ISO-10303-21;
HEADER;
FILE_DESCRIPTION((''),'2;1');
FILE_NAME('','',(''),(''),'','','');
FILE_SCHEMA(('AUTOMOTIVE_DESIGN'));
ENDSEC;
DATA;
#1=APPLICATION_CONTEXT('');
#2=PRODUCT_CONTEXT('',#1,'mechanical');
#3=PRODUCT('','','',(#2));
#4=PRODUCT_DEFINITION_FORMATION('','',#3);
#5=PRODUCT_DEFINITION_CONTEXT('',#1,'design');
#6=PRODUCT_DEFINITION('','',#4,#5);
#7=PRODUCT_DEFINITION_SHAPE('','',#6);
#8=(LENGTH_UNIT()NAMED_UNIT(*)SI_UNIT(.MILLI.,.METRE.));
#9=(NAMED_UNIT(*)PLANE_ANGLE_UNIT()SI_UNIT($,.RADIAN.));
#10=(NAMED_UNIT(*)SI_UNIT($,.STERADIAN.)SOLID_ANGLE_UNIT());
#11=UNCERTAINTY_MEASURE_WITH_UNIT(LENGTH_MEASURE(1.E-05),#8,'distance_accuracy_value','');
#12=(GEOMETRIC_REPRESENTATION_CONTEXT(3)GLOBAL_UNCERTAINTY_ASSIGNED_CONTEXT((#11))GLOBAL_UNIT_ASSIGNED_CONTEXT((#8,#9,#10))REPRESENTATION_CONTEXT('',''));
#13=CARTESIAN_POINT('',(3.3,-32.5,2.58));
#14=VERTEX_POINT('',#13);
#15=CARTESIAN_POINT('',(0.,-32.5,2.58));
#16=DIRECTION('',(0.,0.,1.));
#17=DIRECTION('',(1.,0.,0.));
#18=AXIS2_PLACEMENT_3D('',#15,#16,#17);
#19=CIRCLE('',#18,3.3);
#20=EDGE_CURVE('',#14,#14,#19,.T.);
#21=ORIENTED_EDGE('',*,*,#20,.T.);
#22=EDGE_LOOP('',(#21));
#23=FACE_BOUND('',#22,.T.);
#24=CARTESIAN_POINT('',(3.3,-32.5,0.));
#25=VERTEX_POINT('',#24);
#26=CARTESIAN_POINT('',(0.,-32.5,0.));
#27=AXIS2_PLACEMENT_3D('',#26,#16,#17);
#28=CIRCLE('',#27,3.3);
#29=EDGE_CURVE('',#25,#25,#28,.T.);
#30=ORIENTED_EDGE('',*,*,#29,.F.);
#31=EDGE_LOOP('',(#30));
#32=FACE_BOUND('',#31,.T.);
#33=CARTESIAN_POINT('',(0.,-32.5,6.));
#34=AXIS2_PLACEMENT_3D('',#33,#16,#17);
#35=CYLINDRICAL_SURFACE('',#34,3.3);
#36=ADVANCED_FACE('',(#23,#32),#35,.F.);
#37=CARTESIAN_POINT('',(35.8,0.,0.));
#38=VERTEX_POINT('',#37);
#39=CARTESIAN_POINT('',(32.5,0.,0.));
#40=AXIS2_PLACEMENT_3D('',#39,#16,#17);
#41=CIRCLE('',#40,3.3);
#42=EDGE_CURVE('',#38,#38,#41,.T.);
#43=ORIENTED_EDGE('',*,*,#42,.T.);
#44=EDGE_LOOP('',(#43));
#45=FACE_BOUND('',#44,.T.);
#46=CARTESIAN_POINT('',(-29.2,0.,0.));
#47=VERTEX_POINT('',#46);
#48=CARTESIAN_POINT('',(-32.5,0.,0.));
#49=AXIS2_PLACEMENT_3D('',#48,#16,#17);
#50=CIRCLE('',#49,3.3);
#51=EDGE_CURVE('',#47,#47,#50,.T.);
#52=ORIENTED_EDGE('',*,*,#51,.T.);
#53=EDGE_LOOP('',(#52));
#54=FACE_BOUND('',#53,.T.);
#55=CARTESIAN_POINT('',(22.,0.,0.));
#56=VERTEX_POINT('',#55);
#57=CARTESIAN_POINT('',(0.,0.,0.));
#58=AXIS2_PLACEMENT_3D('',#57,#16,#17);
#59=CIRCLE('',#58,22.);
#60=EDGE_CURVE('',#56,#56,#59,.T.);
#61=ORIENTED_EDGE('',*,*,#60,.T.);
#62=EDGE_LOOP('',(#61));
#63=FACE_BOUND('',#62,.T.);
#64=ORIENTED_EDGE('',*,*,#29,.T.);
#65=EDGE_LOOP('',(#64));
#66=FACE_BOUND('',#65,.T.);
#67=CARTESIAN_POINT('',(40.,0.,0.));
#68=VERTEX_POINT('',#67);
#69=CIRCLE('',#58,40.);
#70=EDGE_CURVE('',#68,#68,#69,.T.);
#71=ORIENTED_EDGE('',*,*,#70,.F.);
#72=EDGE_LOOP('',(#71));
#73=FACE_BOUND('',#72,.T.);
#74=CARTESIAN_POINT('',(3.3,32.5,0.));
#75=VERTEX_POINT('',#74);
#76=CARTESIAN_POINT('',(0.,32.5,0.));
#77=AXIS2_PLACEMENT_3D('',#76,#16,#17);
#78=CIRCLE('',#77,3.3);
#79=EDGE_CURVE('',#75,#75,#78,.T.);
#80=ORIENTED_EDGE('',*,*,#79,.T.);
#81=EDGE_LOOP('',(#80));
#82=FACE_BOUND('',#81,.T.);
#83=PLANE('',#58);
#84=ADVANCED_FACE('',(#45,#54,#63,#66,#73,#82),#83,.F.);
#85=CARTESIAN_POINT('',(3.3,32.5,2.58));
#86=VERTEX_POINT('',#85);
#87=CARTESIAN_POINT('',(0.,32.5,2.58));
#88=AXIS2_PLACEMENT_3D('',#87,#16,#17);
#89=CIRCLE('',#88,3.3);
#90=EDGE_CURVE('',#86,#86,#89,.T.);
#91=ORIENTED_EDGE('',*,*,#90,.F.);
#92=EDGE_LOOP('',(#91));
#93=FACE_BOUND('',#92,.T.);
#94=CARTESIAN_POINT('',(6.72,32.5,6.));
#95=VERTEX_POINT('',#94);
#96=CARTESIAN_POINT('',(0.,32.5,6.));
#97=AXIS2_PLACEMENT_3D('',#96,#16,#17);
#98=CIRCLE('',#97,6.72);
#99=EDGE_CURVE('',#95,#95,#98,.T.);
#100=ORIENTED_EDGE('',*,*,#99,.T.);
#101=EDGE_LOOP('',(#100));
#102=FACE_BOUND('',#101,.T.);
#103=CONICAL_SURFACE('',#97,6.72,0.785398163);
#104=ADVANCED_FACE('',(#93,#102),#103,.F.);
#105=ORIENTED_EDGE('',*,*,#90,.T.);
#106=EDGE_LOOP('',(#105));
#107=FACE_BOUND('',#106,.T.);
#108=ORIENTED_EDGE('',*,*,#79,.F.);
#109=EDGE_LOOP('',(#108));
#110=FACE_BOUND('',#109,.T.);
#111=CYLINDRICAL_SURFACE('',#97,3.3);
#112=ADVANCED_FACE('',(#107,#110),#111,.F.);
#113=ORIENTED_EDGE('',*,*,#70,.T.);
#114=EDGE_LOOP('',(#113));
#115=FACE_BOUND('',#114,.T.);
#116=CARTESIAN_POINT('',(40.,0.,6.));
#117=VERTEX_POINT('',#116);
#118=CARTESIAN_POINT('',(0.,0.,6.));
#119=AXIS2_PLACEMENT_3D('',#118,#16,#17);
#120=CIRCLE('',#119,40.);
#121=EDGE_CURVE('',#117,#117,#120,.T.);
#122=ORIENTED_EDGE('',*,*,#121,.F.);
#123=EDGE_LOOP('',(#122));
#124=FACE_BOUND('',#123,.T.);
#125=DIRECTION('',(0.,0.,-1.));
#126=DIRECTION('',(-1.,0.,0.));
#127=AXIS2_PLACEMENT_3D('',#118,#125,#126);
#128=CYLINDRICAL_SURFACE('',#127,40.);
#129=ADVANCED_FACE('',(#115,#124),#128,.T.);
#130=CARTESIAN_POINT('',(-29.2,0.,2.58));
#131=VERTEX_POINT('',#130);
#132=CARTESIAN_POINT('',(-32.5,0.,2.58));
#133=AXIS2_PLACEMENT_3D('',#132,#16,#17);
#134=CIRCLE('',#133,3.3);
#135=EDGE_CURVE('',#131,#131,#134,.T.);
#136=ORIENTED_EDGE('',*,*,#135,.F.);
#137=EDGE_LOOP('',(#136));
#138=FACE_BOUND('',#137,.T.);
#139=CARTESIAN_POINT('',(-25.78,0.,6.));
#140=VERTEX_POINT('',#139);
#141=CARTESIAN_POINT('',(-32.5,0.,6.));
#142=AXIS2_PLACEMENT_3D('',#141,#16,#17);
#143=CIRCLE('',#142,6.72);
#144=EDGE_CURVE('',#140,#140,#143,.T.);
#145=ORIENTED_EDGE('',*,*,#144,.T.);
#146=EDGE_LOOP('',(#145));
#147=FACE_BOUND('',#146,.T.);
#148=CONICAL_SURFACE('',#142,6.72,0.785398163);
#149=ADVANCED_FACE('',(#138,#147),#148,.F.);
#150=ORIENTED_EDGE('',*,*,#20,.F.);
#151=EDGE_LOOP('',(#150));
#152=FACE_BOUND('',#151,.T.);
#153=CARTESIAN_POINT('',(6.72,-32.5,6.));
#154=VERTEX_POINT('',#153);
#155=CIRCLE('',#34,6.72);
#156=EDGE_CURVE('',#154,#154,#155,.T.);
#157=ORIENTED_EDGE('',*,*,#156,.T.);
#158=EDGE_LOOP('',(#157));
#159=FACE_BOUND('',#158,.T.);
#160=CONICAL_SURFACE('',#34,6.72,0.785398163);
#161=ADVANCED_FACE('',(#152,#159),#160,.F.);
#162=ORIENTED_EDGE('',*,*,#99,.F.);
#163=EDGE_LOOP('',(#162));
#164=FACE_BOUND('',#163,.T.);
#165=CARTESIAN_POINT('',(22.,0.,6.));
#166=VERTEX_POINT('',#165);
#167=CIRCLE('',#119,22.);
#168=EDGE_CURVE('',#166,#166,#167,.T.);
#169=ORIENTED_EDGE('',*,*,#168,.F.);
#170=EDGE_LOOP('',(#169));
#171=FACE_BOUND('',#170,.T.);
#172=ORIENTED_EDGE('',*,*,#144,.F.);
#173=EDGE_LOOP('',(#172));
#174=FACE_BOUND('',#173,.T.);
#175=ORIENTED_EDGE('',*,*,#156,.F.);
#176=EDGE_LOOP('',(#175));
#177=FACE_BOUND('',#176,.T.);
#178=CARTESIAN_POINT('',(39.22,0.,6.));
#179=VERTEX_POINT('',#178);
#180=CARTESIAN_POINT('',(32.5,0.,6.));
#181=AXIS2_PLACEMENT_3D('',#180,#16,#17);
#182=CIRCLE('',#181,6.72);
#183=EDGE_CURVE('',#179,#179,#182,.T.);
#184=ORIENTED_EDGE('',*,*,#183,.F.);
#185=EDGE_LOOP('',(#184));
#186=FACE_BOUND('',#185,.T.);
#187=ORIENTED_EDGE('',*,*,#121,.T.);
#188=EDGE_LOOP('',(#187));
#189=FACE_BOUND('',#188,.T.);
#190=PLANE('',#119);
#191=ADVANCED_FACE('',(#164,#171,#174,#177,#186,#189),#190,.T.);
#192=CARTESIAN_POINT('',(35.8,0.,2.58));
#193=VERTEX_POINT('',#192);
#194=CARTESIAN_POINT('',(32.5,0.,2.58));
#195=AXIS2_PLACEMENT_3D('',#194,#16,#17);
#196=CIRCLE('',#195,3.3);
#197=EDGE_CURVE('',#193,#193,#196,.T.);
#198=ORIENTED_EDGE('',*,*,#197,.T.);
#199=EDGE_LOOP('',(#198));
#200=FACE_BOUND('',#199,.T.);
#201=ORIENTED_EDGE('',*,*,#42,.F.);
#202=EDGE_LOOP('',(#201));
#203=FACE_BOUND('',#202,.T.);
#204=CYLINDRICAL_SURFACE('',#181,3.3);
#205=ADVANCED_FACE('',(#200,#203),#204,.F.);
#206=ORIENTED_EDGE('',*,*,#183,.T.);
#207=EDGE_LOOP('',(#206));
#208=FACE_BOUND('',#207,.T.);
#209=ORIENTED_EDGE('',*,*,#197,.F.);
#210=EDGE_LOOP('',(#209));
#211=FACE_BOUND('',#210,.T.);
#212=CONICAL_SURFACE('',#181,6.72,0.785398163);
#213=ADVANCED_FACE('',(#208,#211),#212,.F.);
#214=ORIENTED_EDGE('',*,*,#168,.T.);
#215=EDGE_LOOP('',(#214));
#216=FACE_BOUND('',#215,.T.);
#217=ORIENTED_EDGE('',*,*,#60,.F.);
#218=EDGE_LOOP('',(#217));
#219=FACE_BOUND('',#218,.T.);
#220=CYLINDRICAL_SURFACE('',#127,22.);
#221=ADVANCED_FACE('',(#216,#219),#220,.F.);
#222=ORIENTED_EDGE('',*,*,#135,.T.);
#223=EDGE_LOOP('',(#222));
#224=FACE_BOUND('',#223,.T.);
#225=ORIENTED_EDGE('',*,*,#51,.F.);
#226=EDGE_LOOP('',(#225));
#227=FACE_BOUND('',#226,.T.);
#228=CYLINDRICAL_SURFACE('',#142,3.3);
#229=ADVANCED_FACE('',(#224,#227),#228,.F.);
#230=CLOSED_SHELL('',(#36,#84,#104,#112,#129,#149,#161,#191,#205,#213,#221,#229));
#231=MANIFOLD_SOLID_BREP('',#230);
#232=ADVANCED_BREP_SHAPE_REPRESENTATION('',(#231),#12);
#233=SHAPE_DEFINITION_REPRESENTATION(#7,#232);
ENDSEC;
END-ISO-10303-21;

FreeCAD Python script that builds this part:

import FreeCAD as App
import Part
import Sketcher
from FreeCAD import Vector
Q = App.Units.Quantity

doc = App.newDocument("Part")
params = doc.addObject("Spreadsheet::Sheet", "Params")
for row, (alias, value) in enumerate([
    ("sketch1_diameter", "80 mm"),
    ("sketch1_diameter2", "44 mm"),
    ("pad1_length", "6 mm"),
    ("sketch2_height", "6 mm"),
    ("sketch2_width", "3.3 mm"),
    ("sketch2_width2", "6.72 mm"),
    ("groove_angle", "360 deg"),
    ("linearpattern_pitch", "45.961941 mm"),
    ("linearpattern2_pitch", "65 mm"),
    ("linearpattern3_pitch", "45.961941 mm"),
], start=1):
    params.set(f"A{row}", alias)
    params.set(f"B{row}", "=" + value)
    params.setAlias(f"B{row}", alias)

body = doc.addObject("PartDesign::Body", "Body")

sketch1 = body.newObject("Sketcher::SketchObject", "Sketch")
sketch1.AttachmentSupport = (doc.getObject("XY_Plane"), [""])
sketch1.MapMode = "FlatFace"
sketch1.addGeometry([
    Part.Circle(Vector(0, 0, 0), Vector(0, 0, 1), 40),
    Part.Circle(Vector(0, 0, 0), Vector(0, 0, 1), 22),
], False)
sketch1.addConstraint([
    Sketcher.Constraint("Coincident", 0, 3, -1, 1),
    Sketcher.Constraint("Coincident", 1, 3, -1, 1),
    Sketcher.Constraint("Diameter", 0, Q("80 mm")),
    Sketcher.Constraint("Diameter", 1, Q("44 mm")),
])
sketch1.setExpression("Constraints[2]", "Params.sketch1_diameter")
sketch1.setExpression("Constraints[3]", "Params.sketch1_diameter2")
pad1 = body.newObject("PartDesign::Pad", "Pad")
pad1.Profile = sketch1
pad1.setExpression("Length", "Params.pad1_length")

sketch2 = body.newObject("Sketcher::SketchObject", "Sketch001")
sketch2.AttachmentSupport = (doc.getObject("YZ_Plane"), [""])
sketch2.MapMode = "FlatFace"
sketch2.addGeometry([
    Part.LineSegment(Vector(32.5, 0, 0), Vector(32.5, 6, 0)),
    Part.LineSegment(Vector(32.5, 6, 0), Vector(25.78, 6, 0)),
    Part.LineSegment(Vector(25.78, 6, 0), Vector(29.2, 2.58, 0)),
    Part.LineSegment(Vector(29.2, 2.58, 0), Vector(29.2, 0, 0)),
    Part.LineSegment(Vector(29.2, 0, 0), Vector(32.5, 0, 0)),
], False)
sketch2.addGeometry(Part.LineSegment(Vector(32.5, 6, 0), Vector(32.5, 0, 0)), True)
sketch2.addConstraint([
    Sketcher.Constraint("Coincident", 0, 2, 1, 1),
    Sketcher.Constraint("Coincident", 1, 2, 2, 1),
    Sketcher.Constraint("Coincident", 2, 2, 3, 1),
    Sketcher.Constraint("Coincident", 3, 2, 4, 1),
    Sketcher.Constraint("Coincident", 4, 2, 0, 1),
    Sketcher.Constraint("Vertical", 0),
    Sketcher.Constraint("Horizontal", 1),
    Sketcher.Constraint("Vertical", 3),
    Sketcher.Constraint("Horizontal", 4),
    Sketcher.Constraint("Vertical", 5),
    Sketcher.Constraint("Coincident", 5, 1, 0, 2),
    Sketcher.Constraint("PointOnObject", 3, 2, -1),
    Sketcher.Constraint("PointOnObject", 5, 2, -1),
    Sketcher.Constraint("DistanceY", 0, 1, 0, 2, Q("6 mm")),
    Sketcher.Constraint("Angle", 2, Q("-45 deg")),
    Sketcher.Constraint("DistanceX", 4, 1, 4, 2, Q("3.3 mm")),
    Sketcher.Constraint("DistanceX", 1, 2, 1, 1, Q("6.72 mm")),
    Sketcher.Constraint("DistanceX", -1, 1, 0, 2, Q("32.5 mm")),
])
sketch2.setExpression("Constraints[13]", "Params.sketch2_height")
sketch2.setExpression("Constraints[15]", "Params.sketch2_width")
sketch2.setExpression("Constraints[16]", "Params.sketch2_width2")
groove = body.newObject("PartDesign::Groove", "Groove")
groove.Profile = sketch2
groove.ReferenceAxis = (sketch2, ["Axis0"])
groove.setExpression("Angle", "Params.groove_angle")
doc.recompute()

datumline = body.newObject("PartDesign::Line", "DatumLine")
datumline.Placement = App.Placement(Vector(0, 0, 0), App.Rotation(Vector(0, 0, 1), Vector(-0.707106781, -0.707106781, 0)))
linearpattern = body.newObject("PartDesign::LinearPattern", "LinearPattern")
linearpattern.Originals = [groove]
linearpattern.Direction = (datumline, [""])
linearpattern.Mode = "offset"
linearpattern.setExpression("Offset", "Params.linearpattern_pitch")
linearpattern.Occurrences = 2
body.Tip = linearpattern
doc.recompute()

linearpattern2 = body.newObject("PartDesign::LinearPattern", "LinearPattern001")
linearpattern2.Originals = [groove]
linearpattern2.Direction = (doc.getObject("Y_Axis"), [""])
linearpattern2.Mode = "offset"
linearpattern2.setExpression("Offset", "Params.linearpattern2_pitch")
linearpattern2.Occurrences = 2
linearpattern2.Reversed = True
body.Tip = linearpattern2
doc.recompute()

datumline2 = body.newObject("PartDesign::Line", "DatumLine001")
datumline2.Placement = App.Placement(Vector(0, 0, 0), App.Rotation(Vector(0, 0, 1), Vector(0.707106781, -0.707106781, 0)))
linearpattern3 = body.newObject("PartDesign::LinearPattern", "LinearPattern002")
linearpattern3.Originals = [groove]
linearpattern3.Direction = (datumline2, [""])
linearpattern3.Mode = "offset"
linearpattern3.setExpression("Offset", "Params.linearpattern3_pitch")
linearpattern3.Occurrences = 2
body.Tip = linearpattern3

doc.recompute()
